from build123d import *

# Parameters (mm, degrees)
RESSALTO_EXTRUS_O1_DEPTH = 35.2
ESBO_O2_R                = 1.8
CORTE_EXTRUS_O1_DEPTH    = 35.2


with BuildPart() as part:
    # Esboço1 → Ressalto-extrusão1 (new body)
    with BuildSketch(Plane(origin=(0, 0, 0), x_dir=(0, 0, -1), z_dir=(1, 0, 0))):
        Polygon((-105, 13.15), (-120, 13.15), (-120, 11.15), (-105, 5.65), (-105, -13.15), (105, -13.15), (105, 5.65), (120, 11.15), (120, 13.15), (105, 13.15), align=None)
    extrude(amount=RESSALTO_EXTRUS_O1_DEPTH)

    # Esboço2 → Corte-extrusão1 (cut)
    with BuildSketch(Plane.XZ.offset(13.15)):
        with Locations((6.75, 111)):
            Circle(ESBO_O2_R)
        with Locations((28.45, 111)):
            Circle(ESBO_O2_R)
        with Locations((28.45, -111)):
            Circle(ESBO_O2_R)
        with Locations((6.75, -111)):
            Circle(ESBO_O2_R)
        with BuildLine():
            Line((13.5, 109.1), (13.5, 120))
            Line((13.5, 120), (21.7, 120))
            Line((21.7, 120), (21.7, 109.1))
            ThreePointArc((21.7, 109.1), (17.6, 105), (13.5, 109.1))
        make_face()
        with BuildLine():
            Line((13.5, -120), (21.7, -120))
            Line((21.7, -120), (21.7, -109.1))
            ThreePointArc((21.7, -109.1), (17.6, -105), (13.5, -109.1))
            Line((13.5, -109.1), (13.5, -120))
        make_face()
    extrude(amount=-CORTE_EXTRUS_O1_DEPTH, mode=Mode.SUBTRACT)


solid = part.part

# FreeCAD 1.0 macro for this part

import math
import FreeCAD as App
import Part
import Sketcher

V = App.Vector
Q = App.Units.Quantity

doc = App.newDocument("Part")
params = doc.addObject("Spreadsheet::Sheet", "Params")
for row, (alias, value) in enumerate([
    ("sketch1_width", "2 mm"),
    ("sketch1_height", "210 mm"),
    ("sketch1_height2", "240 mm"),
    ("sketch1_width2", "18.8 mm"),
    ("pad1_length", "35.2 mm"),
    ("sketch2_diameter", "3.6 mm"),
    ("sketch2_radius", "4.1 mm"),
    ("sketch2_height", "10.9 mm"),
    ("pocket1_length", "35.2 mm"),
], start=1):
    params.set(f"A{row}", alias)
    params.set(f"B{row}", "=" + value)
    params.setAlias(f"B{row}", alias)

body = doc.addObject("PartDesign::Body", "Body")

sketch1 = doc.addObject("Sketcher::SketchObject", "Sketch")
body.addObject(sketch1)
sketch1.AttachmentSupport = (doc.YZ_Plane, [""])
sketch1.MapMode = "FlatFace"
sketch1.addGeometry(Part.LineSegment(V(13.2, 120, 0), V(11.2, 120, 0)), False)
sketch1.addGeometry(Part.LineSegment(V(11.2, 120, 0), V(5.7, 105, 0)), False)
sketch1.addGeometry(Part.LineSegment(V(5.7, 105, 0), V(-13.2, 105, 0)), False)
sketch1.addGeometry(Part.LineSegment(V(-13.2, 105, 0), V(-13.2, -105, 0)), False)
sketch1.addGeometry(Part.LineSegment(V(-13.2, -105, 0), V(5.7, -105, 0)), False)
sketch1.addGeometry(Part.LineSegment(V(5.7, -105, 0), V(11.2, -120, 0)), False)
sketch1.addGeometry(Part.LineSegment(V(11.2, -120, 0), V(13.2, -120, 0)), False)
sketch1.addGeometry(Part.LineSegment(V(13.2, -120, 0), V(13.2, 120, 0)), False)
sketch1.addConstraint(Sketcher.Constraint("Coincident", 0, 2, 1, 1))
sketch1.addConstraint(Sketcher.Constraint("Coincident", 1, 2, 2, 1))
sketch1.addConstraint(Sketcher.Constraint("Coincident", 2, 2, 3, 1))
sketch1.addConstraint(Sketcher.Constraint("Coincident", 3, 2, 4, 1))
sketch1.addConstraint(Sketcher.Constraint("Coincident", 4, 2, 5, 1))
sketch1.addConstraint(Sketcher.Constraint("Coincident", 5, 2, 6, 1))
sketch1.addConstraint(Sketcher.Constraint("Coincident", 6, 2, 7, 1))
sketch1.addConstraint(Sketcher.Constraint("Coincident", 7, 2, 0, 1))
sketch1.addConstraint(Sketcher.Constraint("Horizontal", 0))
sketch1.addConstraint(Sketcher.Constraint("Horizontal", 2))
sketch1.addConstraint(Sketcher.Constraint("Vertical", 3))
sketch1.addConstraint(Sketcher.Constraint("Horizontal", 4))
sketch1.addConstraint(Sketcher.Constraint("Horizontal", 6))
sketch1.addConstraint(Sketcher.Constraint("Vertical", 7))
sketch1.addConstraint(Sketcher.Constraint("Symmetric", 1, 2, 4, 2, -1))
sketch1.addConstraint(Sketcher.Constraint("Symmetric", 0, 2, 5, 2, -1))
sketch1.addConstraint(Sketcher.Constraint("DistanceX", 0, 2, 0, 1, Q("2 mm")))
sketch1.addConstraint(Sketcher.Constraint("DistanceY", 3, 2, 3, 1, Q("210 mm")))
sketch1.addConstraint(Sketcher.Constraint("DistanceY", 7, 1, 7, 2, Q("240 mm")))
sketch1.addConstraint(Sketcher.Constraint("DistanceX", 2, 2, 2, 1, Q("18.8 mm")))
sketch1.addConstraint(Sketcher.Constraint("DistanceX", 1, 2, 0, 2, Q("5.5 mm")))
sketch1.addConstraint(Sketcher.Constraint("DistanceX", -1, 1, 0, 2, Q("11.15 mm")))
sketch1.setExpression("Constraints[16]", "Params.sketch1_width")
sketch1.setExpression("Constraints[17]", "Params.sketch1_height")
sketch1.setExpression("Constraints[18]", "Params.sketch1_height2")
sketch1.setExpression("Constraints[19]", "Params.sketch1_width2")
pad1 = doc.addObject("PartDesign::Pad", "Pad")
body.addObject(pad1)
pad1.Profile = sketch1
pad1.setExpression("Length", "Params.pad1_length")

sketch2 = doc.addObject("Sketcher::SketchObject", "Sketch001")
body.addObject(sketch2)
sketch2.AttachmentSupport = (doc.XZ_Plane, [""])
sketch2.MapMode = "FlatFace"
sketch2.AttachmentOffset = App.Placement(V(0, 0, 13.15), App.Rotation())
sketch2.addGeometry(Part.Circle(V(6.8, 111, 0), V(0, 0, 1), 1.8), False)
sketch2.addGeometry(Part.Circle(V(28.4, 111, 0), V(0, 0, 1), 1.8), False)
sketch2.addGeometry(Part.Circle(V(28.4, -111, 0), V(0, 0, 1), 1.8), False)
sketch2.addGeometry(Part.Circle(V(6.8, -111, 0), V(0, 0, 1), 1.8), False)
sketch2.addGeometry(Part.LineSegment(V(13.5, 120, 0), V(13.5, 109.1, 0)), False)
sketch2.addGeometry(Part.ArcOfCircle(Part.Circle(V(17.6, 109.1, 0), V(0, 0, 1), 4.1), math.radians(180), math.radians(360)), False)
sketch2.addGeometry(Part.LineSegment(V(21.7, 109.1, 0), V(21.7, 120, 0)), False)
sketch2.addGeometry(Part.LineSegment(V(21.7, 120, 0), V(13.5, 120, 0)), False)
sketch2.addGeometry(Part.LineSegment(V(13.5, -120, 0), V(21.7, -120, 0)), False)
sketch2.addGeometry(Part.LineSegment(V(21.7, -120, 0), V(21.7, -109.1, 0)), False)
sketch2.addGeometry(Part.ArcOfCircle(Part.Circle(V(17.6, -109.1, 0), V(0, 0, 1), 4.1), math.radians(0), math.radians(180)), False)
sketch2.addGeometry(Part.LineSegment(V(13.5, -109.1, 0), V(13.5, -120, 0)), False)
sketch2.addConstraint(Sketcher.Constraint("Tangent", 4, 2, 5, 1))
sketch2.addConstraint(Sketcher.Constraint("Tangent", 5, 2, 6, 1))
sketch2.addConstraint(Sketcher.Constraint("Coincident", 6, 2, 7, 1))
sketch2.addConstraint(Sketcher.Constraint("Coincident", 7, 2, 4, 1))
sketch2.addConstraint(Sketcher.Constraint("Coincident", 8, 2, 9, 1))
sketch2.addConstraint(Sketcher.Constraint("Tangent", 9, 2, 10, 1))
sketch2.addConstraint(Sketcher.Constraint("Tangent", 10, 2, 11, 1))
sketch2.addConstraint(Sketcher.Constraint("Coincident", 11, 2, 8, 1))
sketch2.addConstraint(Sketcher.Constraint("Vertical", 4))
sketch2.addConstraint(Sketcher.Constraint("Vertical", 6))
sketch2.addConstraint(Sketcher.Constraint("Horizontal", 7))
sketch2.addConstraint(Sketcher.Constraint("Horizontal", 8))
sketch2.addConstraint(Sketcher.Constraint("Vertical", 9))
sketch2.addConstraint(Sketcher.Constraint("Vertical", 11))
sketch2.addConstraint(Sketcher.Constraint("Equal", 0, 1))
sketch2.addConstraint(Sketcher.Constraint("Equal", 1, 2))
sketch2.addConstraint(Sketcher.Constraint("Equal", 2, 3))
sketch2.addConstraint(Sketcher.Constraint("Equal", 5, 10))
sketch2.addConstraint(Sketcher.Constraint("Symmetric", 1, 3, 2, 3, -1))
sketch2.addConstraint(Sketcher.Constraint("Symmetric", 0, 3, 3, 3, -1))
sketch2.addConstraint(Sketcher.Constraint("Symmetric", 5, 3, 10, 3, -1))
sketch2.addConstraint(Sketcher.Constraint("Horizontal", 0, 3, 1, 3))
sketch2.addConstraint(Sketcher.Constraint("Equal", 6, 9))
sketch2.addConstraint(Sketcher.Constraint("Diameter", 0, Q("3.6 mm")))
sketch2.addConstraint(Sketcher.Constraint("Radius", 5, Q("4.1 mm")))
sketch2.addConstraint(Sketcher.Constraint("DistanceY", 4, 2, 4, 1, Q("10.9 mm")))
sketch2.addConstraint(Sketcher.Constraint("DistanceY", -1, 1, 0, 3, Q("111 mm")))
sketch2.addConstraint(Sketcher.Constraint("DistanceY", -1, 1, 6, 2, Q("120 mm")))
sketch2.addConstraint(Sketcher.Constraint("DistanceX", -1, 1, 5, 3, Q("17.6 mm")))
sketch2.addConstraint(Sketcher.Constraint("DistanceX", 0, 3, 1, 3, Q("21.7 mm")))
sketch2.addConstraint(Sketcher.Constraint("DistanceX", -1, 1, 0, 3, Q("6.75 mm")))
sketch2.setExpression("Constraints[23]", "Params.sketch2_diameter")
sketch2.setExpression("Constraints[24]", "Params.sketch2_radius")
sketch2.setExpression("Constraints[25]", "Params.sketch2_height")
pocket1 = doc.addObject("PartDesign::Pocket", "Pocket")
body.addObject(pocket1)
pocket1.Profile = sketch2
pocket1.setExpression("Length", "Params.pocket1_length")

doc.recompute()
